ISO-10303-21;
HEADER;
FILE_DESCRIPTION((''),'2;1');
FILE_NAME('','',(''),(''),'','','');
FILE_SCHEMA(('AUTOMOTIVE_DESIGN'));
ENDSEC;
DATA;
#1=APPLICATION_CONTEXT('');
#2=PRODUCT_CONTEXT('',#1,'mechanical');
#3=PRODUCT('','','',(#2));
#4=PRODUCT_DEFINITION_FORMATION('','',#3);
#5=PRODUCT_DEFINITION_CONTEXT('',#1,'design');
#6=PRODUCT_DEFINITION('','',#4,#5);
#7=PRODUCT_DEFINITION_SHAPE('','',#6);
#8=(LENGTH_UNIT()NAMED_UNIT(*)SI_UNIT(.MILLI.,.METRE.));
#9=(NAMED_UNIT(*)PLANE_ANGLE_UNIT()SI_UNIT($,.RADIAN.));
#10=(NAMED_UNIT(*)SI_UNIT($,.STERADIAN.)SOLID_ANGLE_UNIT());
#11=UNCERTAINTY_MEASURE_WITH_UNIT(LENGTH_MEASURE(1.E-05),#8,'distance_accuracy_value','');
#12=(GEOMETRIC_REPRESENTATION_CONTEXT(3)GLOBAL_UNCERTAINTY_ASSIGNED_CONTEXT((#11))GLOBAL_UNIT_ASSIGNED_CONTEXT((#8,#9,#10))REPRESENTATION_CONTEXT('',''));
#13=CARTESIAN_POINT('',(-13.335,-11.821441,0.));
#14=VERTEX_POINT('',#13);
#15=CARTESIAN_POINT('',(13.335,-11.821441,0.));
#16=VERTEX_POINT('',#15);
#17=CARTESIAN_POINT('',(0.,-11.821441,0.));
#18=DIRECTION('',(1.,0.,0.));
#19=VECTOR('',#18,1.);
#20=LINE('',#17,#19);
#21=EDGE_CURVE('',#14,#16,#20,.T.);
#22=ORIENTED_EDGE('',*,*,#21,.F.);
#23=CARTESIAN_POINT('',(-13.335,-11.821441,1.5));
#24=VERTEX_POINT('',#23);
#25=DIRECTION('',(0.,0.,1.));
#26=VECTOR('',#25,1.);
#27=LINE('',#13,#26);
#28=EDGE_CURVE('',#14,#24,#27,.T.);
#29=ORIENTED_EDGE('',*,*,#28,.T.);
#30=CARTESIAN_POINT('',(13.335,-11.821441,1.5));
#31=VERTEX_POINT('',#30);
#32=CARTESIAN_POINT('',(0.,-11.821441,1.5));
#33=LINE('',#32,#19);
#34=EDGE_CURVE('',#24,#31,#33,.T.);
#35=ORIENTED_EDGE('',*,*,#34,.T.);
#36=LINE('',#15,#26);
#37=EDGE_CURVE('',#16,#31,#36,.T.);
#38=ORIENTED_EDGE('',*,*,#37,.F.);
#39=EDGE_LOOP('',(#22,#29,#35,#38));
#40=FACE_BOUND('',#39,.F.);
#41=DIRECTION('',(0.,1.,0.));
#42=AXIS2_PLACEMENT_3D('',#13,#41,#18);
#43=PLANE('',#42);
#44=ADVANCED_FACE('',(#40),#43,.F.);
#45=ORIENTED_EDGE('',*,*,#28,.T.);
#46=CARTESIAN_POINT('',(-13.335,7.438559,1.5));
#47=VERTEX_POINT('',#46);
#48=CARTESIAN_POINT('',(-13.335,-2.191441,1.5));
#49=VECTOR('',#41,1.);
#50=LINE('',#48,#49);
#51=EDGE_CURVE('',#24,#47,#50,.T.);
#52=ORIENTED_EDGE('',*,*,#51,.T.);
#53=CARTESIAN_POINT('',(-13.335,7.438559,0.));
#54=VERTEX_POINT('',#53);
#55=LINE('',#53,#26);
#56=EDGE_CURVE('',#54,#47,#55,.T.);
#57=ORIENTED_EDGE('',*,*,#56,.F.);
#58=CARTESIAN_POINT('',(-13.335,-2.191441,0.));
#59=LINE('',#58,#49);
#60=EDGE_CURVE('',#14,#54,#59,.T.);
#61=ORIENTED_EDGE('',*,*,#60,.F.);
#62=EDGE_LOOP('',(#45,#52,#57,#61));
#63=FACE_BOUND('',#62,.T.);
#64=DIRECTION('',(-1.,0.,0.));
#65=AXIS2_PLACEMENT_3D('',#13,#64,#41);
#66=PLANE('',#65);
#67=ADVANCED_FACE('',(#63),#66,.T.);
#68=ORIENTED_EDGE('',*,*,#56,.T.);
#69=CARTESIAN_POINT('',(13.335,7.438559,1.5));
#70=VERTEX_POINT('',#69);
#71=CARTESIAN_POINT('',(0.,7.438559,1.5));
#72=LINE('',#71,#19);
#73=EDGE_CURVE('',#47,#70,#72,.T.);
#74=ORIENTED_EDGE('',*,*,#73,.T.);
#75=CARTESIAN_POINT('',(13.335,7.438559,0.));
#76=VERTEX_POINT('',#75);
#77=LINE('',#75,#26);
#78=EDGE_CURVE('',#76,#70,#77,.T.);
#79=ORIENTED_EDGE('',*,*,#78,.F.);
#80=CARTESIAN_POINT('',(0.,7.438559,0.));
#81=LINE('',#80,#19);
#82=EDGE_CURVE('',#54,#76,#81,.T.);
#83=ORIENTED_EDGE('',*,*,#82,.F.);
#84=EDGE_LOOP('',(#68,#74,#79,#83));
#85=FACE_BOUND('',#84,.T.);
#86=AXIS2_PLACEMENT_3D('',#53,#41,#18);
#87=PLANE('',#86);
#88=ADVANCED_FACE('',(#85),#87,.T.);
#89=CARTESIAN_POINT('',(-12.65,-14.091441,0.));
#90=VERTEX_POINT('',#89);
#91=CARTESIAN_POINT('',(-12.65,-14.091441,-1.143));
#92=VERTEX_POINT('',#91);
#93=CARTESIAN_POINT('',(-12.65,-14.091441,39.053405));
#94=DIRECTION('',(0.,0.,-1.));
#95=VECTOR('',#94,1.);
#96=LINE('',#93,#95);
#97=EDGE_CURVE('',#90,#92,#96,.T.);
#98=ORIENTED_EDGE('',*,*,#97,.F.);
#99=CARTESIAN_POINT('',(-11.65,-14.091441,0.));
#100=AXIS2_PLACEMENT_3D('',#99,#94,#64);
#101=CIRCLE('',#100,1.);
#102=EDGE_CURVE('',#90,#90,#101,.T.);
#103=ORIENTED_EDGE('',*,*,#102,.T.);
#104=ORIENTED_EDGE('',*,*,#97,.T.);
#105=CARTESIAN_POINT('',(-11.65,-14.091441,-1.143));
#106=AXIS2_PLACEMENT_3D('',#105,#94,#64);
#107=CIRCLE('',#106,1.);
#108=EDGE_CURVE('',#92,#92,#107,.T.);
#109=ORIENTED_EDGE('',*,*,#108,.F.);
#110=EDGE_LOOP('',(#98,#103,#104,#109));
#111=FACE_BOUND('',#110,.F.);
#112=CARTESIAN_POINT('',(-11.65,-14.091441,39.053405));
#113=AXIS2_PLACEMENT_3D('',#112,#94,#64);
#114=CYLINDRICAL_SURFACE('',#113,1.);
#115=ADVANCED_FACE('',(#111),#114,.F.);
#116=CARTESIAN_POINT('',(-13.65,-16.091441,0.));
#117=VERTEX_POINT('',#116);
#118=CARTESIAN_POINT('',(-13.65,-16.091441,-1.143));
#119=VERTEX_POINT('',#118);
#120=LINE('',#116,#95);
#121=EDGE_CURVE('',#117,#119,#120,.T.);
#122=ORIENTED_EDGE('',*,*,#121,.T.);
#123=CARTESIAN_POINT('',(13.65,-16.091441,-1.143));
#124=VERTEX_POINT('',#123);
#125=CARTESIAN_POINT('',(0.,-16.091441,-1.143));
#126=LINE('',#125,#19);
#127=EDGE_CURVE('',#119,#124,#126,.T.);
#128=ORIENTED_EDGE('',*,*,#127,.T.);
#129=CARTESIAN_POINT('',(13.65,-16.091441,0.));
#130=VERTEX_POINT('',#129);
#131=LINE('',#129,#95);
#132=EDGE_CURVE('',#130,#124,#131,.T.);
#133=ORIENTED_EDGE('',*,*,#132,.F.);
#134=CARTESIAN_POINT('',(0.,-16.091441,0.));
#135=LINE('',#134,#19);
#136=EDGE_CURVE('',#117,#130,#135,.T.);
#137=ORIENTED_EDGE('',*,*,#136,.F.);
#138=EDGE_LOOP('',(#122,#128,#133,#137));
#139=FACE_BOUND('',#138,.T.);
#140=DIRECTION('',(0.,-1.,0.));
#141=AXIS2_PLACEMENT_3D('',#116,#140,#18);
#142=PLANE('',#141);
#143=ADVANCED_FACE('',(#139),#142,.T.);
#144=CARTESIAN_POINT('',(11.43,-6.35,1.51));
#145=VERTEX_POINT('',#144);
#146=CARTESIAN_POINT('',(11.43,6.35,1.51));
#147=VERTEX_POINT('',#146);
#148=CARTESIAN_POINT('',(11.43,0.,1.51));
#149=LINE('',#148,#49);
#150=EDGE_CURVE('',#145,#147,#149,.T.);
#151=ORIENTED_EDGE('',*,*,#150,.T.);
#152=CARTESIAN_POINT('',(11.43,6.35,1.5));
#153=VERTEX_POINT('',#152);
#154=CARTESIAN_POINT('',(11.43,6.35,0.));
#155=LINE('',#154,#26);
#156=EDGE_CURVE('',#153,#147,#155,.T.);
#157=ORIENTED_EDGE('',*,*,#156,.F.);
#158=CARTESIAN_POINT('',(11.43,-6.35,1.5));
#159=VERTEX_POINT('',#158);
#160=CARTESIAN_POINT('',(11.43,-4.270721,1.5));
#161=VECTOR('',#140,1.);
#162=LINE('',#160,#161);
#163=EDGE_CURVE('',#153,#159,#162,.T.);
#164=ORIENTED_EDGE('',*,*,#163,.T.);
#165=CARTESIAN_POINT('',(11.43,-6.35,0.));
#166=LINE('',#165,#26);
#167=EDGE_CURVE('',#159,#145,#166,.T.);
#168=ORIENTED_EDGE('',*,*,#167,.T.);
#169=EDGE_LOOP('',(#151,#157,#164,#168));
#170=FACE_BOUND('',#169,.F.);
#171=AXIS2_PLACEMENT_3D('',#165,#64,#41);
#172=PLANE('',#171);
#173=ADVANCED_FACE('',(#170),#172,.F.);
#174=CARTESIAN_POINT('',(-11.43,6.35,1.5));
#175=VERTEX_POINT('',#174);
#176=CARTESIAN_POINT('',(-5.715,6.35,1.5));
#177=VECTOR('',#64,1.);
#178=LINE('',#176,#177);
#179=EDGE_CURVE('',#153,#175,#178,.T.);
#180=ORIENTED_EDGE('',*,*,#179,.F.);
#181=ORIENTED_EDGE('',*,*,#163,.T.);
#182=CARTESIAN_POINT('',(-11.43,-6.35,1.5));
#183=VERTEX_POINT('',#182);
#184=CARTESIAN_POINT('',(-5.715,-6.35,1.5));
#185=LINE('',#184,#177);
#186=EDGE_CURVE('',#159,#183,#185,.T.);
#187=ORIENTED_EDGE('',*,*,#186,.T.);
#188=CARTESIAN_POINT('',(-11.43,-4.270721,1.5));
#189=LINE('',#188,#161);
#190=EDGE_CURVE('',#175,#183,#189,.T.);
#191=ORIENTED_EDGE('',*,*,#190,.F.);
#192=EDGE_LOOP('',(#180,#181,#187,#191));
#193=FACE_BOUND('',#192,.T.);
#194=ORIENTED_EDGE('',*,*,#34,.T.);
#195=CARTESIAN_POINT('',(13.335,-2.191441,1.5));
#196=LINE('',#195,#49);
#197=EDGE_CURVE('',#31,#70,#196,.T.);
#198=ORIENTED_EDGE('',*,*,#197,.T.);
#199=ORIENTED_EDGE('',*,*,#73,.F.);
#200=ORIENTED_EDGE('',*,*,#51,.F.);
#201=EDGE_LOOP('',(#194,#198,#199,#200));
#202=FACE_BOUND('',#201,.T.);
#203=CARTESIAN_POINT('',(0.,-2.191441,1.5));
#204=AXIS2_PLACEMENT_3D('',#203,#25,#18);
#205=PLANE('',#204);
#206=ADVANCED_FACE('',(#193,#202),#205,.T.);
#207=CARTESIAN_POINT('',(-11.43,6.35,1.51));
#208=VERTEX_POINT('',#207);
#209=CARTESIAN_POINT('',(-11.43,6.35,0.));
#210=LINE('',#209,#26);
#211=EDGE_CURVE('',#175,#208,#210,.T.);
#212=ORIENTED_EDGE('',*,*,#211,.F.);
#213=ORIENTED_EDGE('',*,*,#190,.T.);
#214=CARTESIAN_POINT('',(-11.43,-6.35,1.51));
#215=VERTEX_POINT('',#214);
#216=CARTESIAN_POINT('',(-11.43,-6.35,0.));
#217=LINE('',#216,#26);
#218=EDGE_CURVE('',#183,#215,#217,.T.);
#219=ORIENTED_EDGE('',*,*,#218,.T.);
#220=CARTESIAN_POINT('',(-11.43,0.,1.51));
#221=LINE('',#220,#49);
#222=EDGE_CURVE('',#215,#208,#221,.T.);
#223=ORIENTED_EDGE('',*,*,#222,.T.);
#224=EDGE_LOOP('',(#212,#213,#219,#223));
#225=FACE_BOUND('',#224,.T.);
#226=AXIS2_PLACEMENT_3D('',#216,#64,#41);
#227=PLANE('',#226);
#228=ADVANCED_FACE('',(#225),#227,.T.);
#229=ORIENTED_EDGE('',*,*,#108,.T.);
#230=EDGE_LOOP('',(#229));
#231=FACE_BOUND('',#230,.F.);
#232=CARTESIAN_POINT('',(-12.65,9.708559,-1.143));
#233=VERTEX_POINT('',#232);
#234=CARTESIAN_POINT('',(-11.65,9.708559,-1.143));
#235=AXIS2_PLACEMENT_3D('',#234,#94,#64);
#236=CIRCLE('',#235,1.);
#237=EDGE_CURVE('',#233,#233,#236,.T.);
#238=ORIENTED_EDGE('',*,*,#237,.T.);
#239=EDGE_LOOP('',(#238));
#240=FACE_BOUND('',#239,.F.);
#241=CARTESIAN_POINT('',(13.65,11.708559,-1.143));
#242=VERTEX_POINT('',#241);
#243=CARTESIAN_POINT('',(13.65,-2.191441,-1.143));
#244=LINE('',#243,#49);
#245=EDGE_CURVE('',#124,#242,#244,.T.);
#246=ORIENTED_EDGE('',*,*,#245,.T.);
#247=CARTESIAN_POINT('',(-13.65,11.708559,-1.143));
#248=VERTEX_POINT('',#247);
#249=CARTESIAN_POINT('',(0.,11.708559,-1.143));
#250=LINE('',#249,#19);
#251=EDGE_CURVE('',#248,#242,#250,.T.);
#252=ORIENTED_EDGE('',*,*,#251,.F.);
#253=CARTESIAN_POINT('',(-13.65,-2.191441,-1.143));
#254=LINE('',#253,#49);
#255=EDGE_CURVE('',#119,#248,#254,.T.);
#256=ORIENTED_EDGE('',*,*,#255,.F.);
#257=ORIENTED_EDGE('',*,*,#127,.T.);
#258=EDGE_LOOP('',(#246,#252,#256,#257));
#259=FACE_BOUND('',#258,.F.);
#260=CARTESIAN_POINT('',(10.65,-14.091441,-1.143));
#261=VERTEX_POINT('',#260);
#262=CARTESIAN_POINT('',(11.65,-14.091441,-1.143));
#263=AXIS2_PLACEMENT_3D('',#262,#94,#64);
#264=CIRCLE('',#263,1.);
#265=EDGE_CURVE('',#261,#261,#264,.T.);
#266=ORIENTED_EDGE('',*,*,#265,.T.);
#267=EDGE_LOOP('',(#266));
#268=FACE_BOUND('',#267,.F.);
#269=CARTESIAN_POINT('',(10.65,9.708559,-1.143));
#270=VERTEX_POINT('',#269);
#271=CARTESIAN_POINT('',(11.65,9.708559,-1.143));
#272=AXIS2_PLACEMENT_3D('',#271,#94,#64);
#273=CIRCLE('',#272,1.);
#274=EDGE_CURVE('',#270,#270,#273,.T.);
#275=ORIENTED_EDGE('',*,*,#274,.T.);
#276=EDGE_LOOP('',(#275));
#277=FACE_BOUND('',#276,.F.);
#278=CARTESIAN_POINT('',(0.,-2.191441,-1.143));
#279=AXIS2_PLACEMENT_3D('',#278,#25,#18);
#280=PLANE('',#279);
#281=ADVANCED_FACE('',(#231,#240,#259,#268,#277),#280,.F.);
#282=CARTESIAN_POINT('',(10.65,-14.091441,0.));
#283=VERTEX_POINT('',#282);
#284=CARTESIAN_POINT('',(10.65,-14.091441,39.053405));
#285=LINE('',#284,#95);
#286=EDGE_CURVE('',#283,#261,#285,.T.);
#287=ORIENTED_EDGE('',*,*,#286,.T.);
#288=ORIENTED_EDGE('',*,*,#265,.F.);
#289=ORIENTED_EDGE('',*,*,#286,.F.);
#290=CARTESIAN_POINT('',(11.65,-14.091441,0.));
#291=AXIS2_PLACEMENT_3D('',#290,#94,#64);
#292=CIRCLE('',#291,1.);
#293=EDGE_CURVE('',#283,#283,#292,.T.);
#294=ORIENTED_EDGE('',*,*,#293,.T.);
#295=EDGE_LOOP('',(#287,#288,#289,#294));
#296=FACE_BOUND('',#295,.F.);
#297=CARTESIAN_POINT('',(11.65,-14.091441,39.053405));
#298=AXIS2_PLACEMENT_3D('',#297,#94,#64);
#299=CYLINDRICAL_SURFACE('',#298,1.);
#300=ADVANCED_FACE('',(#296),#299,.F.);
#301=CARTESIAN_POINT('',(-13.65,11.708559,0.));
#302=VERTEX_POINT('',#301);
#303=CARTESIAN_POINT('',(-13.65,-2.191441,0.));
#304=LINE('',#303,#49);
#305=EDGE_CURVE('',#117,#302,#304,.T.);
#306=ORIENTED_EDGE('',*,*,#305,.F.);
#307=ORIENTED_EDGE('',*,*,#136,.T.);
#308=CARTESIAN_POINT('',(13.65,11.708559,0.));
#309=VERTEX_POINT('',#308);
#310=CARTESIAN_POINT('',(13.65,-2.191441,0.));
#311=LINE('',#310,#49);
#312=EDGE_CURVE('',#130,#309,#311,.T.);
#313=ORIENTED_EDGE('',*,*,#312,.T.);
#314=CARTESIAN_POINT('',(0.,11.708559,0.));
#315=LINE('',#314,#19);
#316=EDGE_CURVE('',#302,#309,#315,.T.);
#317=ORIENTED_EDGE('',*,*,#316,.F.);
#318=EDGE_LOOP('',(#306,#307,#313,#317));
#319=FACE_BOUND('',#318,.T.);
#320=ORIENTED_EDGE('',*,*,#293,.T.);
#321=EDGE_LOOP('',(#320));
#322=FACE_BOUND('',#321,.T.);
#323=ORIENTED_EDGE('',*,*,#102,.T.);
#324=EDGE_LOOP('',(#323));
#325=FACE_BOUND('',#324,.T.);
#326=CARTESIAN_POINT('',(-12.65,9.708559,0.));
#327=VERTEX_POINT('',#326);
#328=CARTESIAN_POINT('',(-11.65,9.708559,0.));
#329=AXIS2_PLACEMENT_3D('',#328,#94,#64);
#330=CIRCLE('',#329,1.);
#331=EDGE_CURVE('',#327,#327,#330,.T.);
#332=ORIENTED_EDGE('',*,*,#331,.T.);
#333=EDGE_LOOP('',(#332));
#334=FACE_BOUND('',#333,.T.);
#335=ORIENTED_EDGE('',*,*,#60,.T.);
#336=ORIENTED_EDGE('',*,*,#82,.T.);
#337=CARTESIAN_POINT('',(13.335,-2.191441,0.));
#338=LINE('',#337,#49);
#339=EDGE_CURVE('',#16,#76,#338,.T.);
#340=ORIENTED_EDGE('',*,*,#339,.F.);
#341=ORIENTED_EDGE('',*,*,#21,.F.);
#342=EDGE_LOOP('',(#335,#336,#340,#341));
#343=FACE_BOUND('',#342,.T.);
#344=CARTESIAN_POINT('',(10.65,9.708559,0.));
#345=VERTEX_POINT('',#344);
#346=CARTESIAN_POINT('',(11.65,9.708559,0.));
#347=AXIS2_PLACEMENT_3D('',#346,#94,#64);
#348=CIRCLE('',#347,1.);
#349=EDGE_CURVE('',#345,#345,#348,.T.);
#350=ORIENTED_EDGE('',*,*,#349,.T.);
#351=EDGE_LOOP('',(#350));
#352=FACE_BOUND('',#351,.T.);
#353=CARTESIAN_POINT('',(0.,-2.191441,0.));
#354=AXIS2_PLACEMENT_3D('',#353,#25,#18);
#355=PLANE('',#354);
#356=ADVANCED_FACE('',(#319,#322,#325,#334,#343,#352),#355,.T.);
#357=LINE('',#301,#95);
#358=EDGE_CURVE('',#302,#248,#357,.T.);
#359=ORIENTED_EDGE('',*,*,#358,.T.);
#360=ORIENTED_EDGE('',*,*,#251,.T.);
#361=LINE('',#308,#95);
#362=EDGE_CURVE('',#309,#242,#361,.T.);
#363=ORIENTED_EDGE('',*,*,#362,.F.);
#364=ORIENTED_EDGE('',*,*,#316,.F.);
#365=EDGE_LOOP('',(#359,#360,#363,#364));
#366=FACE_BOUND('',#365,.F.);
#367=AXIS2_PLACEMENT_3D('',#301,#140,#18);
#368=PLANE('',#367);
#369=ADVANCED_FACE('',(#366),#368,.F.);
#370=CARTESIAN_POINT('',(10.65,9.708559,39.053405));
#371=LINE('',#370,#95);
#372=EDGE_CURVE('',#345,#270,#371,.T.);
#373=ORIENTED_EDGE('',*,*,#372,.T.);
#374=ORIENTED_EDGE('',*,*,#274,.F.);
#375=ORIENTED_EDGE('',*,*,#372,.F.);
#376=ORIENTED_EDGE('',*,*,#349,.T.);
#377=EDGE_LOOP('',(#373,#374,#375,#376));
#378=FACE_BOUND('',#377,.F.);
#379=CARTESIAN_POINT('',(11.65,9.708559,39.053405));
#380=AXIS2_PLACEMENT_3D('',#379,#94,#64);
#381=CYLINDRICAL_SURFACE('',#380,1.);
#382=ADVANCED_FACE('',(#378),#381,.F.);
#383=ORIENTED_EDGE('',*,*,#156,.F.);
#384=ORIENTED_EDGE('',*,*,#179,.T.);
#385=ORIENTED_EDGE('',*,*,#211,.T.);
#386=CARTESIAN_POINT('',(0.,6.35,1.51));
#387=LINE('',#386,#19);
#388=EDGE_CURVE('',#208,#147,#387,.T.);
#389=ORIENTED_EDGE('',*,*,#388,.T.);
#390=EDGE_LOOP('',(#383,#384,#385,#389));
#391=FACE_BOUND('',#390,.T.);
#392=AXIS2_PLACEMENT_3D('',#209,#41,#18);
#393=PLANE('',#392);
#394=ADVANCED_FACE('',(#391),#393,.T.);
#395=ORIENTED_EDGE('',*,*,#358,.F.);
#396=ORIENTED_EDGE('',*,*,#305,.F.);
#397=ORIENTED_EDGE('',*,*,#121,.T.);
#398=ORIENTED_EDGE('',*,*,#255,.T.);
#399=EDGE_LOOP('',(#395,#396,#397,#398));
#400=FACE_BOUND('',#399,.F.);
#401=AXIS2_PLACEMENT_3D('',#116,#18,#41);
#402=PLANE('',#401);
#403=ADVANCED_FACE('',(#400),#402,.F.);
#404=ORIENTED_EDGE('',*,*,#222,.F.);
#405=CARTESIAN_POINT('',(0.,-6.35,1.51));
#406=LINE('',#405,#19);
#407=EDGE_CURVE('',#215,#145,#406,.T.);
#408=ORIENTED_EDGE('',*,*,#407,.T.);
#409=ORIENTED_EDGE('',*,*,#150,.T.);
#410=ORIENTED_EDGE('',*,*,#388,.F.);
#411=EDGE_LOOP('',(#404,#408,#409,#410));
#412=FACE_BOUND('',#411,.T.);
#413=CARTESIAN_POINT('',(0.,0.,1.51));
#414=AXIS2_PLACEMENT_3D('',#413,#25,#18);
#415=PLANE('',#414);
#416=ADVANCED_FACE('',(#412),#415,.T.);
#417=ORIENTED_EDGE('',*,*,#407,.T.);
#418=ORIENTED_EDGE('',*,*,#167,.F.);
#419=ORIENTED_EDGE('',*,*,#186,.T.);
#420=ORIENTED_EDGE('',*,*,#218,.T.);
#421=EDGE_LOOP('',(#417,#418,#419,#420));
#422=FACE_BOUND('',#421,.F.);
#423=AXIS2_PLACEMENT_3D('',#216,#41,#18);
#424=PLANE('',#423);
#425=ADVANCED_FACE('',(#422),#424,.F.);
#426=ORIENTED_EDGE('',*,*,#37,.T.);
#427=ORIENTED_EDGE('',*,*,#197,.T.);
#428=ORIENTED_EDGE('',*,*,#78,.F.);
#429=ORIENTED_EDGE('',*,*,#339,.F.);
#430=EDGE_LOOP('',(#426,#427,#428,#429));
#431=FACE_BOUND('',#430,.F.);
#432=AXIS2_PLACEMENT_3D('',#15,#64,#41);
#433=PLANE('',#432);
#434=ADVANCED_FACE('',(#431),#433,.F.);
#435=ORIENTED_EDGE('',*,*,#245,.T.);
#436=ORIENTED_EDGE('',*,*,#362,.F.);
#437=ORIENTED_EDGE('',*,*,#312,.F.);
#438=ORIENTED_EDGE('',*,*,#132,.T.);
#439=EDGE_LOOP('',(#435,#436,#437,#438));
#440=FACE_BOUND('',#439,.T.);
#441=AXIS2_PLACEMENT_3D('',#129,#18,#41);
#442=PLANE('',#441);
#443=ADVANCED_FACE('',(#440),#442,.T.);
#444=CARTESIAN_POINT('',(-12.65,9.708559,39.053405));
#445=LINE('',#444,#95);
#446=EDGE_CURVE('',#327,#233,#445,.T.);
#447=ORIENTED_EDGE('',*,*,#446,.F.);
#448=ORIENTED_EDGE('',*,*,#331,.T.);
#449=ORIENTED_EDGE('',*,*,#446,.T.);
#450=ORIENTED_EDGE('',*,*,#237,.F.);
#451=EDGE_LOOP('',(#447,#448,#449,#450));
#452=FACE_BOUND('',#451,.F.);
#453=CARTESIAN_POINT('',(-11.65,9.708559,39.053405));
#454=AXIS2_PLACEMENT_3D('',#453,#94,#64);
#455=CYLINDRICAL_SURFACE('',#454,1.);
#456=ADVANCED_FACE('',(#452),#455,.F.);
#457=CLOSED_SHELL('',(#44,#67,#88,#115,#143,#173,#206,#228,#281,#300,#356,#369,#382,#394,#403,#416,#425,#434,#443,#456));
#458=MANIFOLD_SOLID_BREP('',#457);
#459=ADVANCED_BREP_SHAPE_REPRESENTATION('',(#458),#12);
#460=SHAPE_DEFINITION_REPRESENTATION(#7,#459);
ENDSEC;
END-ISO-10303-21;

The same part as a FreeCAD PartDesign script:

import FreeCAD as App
import Part
import Sketcher
from FreeCAD import Vector
Q = App.Units.Quantity


def add_polygon(sketch, points):
    """Adds a closed chain of lines whose ends are joined by coincident constraints."""
    first, n = sketch.GeometryCount, len(points)
    for a, b in zip(points, points[1:] + points[:1]):
        sketch.addGeometry(Part.LineSegment(App.Vector(*a, 0), App.Vector(*b, 0)), False)
    for i in range(n):
        sketch.addConstraint(Sketcher.Constraint("Coincident", first + i, 2, first + (i + 1) % n, 1))

doc = App.newDocument("Part")
body = doc.addObject("PartDesign::Body", "Body")

sketch1 = body.newObject("Sketcher::SketchObject", "Sketch")
sketch1.AttachmentSupport = (doc.getObject("XY_Plane"), [""])
sketch1.MapMode = "FlatFace"
add_polygon(sketch1, [(-14, 12), (-14, -16), (14, -16), (14, 12)])
sketch1.addConstraint([
    Sketcher.Constraint("Vertical", 0),
    Sketcher.Constraint("Horizontal", 1),
    Sketcher.Constraint("Vertical", 2),
    Sketcher.Constraint("Horizontal", 3),
    Sketcher.Constraint("DistanceX", 1, 1, 1, 2, Q("27.3 mm")),
    Sketcher.Constraint("DistanceY", 0, 2, 0, 1, Q("27.8 mm")),
    Sketcher.Constraint("DistanceX", 0, 2, -1, 1, Q("13.65 mm")),
    Sketcher.Constraint("DistanceY", 0, 2, -1, 1, Q("16.091441 mm")),
])
pad1 = body.newObject("PartDesign::Pad", "Pad")
pad1.Profile = sketch1
pad1.Length = 1.143
pad1.Reversed = True

sketch2 = body.newObject("Sketcher::SketchObject", "Sketch001")
sketch2.AttachmentSupport = (doc.getObject("XY_Plane"), [""])
sketch2.MapMode = "FlatFace"
add_polygon(sketch2, [(-13, 7), (-13, -12), (13, -12), (13, 7)])
sketch2.addConstraint([
    Sketcher.Constraint("Vertical", 0),
    Sketcher.Constraint("Horizontal", 1),
    Sketcher.Constraint("Vertical", 2),
    Sketcher.Constraint("Horizontal", 3),
    Sketcher.Constraint("DistanceX", 1, 1, 1, 2, Q("26.67 mm")),
    Sketcher.Constraint("DistanceY", 0, 2, 0, 1, Q("19.26 mm")),
    Sketcher.Constraint("DistanceX", 0, 2, -1, 1, Q("13.335 mm")),
    Sketcher.Constraint("DistanceY", 0, 2, -1, 1, Q("11.821441 mm")),
])
pad2 = body.newObject("PartDesign::Pad", "Pad001")
pad2.Profile = sketch2
pad2.Length = 1.5

sketch3 = body.newObject("Sketcher::SketchObject", "Sketch002")
sketch3.AttachmentSupport = (doc.getObject("XY_Plane"), [""])
sketch3.MapMode = "FlatFace"
add_polygon(sketch3, [(-11, 6), (-11, -6), (11, -6), (11, 6)])
sketch3.addConstraint([
    Sketcher.Constraint("Vertical", 0),
    Sketcher.Constraint("Horizontal", 1),
    Sketcher.Constraint("Vertical", 2),
    Sketcher.Constraint("Horizontal", 3),
    Sketcher.Constraint("Symmetric", 0, 2, 2, 2, -1, 1),
    Sketcher.Constraint("DistanceY", 0, 2, 0, 1, Q("12.7 mm")),
    Sketcher.Constraint("DistanceX", 1, 1, 1, 2, Q("22.86 mm")),
])
pad3 = body.newObject("PartDesign::Pad", "Pad002")
pad3.Profile = sketch3
pad3.Length = 1.51

sketch4 = body.newObject("Sketcher::SketchObject", "Sketch003")
sketch4.AttachmentSupport = (doc.getObject("XY_Plane"), [""])
sketch4.MapMode = "FlatFace"
sketch4.addGeometry([
    Part.Circle(Vector(-11.7, 9.7, 0), Vector(0, 0, 1), 1),
    Part.Circle(Vector(11.7, 9.7, 0), Vector(0, 0, 1), 1),
    Part.Circle(Vector(11.7, -14.1, 0), Vector(0, 0, 1), 1),
    Part.Circle(Vector(-11.7, -14.1, 0), Vector(0, 0, 1), 1),
], False)
sketch4.addConstraint([
    Sketcher.Constraint("Equal", 0, 1),
    Sketcher.Constraint("Equal", 1, 2),
    Sketcher.Constraint("Equal", 2, 3),
    Sketcher.Constraint("Symmetric", 0, 3, 1, 3, -2),
    Sketcher.Constraint("Symmetric", 2, 3, 3, 3, -2),
    Sketcher.Constraint("Vertical", 1, 3, 2, 3),
    Sketcher.Constraint("Diameter", 0, Q("2 mm")),
    Sketcher.Constraint("DistanceX", 0, 3, 1, 3, Q("23.3 mm")),
    Sketcher.Constraint("DistanceY", 2, 3, 1, 3, Q("23.8 mm")),
    Sketcher.Constraint("DistanceY", -1, 1, 0, 3, Q("9.708559 mm")),
])
doc.recompute()
hole = body.newObject("PartDesign::Hole", "Hole")
hole.Profile = sketch4
hole.ThreadType = "None"
hole.Diameter = 2
hole.DepthType = "ThroughAll"

doc.recompute()
